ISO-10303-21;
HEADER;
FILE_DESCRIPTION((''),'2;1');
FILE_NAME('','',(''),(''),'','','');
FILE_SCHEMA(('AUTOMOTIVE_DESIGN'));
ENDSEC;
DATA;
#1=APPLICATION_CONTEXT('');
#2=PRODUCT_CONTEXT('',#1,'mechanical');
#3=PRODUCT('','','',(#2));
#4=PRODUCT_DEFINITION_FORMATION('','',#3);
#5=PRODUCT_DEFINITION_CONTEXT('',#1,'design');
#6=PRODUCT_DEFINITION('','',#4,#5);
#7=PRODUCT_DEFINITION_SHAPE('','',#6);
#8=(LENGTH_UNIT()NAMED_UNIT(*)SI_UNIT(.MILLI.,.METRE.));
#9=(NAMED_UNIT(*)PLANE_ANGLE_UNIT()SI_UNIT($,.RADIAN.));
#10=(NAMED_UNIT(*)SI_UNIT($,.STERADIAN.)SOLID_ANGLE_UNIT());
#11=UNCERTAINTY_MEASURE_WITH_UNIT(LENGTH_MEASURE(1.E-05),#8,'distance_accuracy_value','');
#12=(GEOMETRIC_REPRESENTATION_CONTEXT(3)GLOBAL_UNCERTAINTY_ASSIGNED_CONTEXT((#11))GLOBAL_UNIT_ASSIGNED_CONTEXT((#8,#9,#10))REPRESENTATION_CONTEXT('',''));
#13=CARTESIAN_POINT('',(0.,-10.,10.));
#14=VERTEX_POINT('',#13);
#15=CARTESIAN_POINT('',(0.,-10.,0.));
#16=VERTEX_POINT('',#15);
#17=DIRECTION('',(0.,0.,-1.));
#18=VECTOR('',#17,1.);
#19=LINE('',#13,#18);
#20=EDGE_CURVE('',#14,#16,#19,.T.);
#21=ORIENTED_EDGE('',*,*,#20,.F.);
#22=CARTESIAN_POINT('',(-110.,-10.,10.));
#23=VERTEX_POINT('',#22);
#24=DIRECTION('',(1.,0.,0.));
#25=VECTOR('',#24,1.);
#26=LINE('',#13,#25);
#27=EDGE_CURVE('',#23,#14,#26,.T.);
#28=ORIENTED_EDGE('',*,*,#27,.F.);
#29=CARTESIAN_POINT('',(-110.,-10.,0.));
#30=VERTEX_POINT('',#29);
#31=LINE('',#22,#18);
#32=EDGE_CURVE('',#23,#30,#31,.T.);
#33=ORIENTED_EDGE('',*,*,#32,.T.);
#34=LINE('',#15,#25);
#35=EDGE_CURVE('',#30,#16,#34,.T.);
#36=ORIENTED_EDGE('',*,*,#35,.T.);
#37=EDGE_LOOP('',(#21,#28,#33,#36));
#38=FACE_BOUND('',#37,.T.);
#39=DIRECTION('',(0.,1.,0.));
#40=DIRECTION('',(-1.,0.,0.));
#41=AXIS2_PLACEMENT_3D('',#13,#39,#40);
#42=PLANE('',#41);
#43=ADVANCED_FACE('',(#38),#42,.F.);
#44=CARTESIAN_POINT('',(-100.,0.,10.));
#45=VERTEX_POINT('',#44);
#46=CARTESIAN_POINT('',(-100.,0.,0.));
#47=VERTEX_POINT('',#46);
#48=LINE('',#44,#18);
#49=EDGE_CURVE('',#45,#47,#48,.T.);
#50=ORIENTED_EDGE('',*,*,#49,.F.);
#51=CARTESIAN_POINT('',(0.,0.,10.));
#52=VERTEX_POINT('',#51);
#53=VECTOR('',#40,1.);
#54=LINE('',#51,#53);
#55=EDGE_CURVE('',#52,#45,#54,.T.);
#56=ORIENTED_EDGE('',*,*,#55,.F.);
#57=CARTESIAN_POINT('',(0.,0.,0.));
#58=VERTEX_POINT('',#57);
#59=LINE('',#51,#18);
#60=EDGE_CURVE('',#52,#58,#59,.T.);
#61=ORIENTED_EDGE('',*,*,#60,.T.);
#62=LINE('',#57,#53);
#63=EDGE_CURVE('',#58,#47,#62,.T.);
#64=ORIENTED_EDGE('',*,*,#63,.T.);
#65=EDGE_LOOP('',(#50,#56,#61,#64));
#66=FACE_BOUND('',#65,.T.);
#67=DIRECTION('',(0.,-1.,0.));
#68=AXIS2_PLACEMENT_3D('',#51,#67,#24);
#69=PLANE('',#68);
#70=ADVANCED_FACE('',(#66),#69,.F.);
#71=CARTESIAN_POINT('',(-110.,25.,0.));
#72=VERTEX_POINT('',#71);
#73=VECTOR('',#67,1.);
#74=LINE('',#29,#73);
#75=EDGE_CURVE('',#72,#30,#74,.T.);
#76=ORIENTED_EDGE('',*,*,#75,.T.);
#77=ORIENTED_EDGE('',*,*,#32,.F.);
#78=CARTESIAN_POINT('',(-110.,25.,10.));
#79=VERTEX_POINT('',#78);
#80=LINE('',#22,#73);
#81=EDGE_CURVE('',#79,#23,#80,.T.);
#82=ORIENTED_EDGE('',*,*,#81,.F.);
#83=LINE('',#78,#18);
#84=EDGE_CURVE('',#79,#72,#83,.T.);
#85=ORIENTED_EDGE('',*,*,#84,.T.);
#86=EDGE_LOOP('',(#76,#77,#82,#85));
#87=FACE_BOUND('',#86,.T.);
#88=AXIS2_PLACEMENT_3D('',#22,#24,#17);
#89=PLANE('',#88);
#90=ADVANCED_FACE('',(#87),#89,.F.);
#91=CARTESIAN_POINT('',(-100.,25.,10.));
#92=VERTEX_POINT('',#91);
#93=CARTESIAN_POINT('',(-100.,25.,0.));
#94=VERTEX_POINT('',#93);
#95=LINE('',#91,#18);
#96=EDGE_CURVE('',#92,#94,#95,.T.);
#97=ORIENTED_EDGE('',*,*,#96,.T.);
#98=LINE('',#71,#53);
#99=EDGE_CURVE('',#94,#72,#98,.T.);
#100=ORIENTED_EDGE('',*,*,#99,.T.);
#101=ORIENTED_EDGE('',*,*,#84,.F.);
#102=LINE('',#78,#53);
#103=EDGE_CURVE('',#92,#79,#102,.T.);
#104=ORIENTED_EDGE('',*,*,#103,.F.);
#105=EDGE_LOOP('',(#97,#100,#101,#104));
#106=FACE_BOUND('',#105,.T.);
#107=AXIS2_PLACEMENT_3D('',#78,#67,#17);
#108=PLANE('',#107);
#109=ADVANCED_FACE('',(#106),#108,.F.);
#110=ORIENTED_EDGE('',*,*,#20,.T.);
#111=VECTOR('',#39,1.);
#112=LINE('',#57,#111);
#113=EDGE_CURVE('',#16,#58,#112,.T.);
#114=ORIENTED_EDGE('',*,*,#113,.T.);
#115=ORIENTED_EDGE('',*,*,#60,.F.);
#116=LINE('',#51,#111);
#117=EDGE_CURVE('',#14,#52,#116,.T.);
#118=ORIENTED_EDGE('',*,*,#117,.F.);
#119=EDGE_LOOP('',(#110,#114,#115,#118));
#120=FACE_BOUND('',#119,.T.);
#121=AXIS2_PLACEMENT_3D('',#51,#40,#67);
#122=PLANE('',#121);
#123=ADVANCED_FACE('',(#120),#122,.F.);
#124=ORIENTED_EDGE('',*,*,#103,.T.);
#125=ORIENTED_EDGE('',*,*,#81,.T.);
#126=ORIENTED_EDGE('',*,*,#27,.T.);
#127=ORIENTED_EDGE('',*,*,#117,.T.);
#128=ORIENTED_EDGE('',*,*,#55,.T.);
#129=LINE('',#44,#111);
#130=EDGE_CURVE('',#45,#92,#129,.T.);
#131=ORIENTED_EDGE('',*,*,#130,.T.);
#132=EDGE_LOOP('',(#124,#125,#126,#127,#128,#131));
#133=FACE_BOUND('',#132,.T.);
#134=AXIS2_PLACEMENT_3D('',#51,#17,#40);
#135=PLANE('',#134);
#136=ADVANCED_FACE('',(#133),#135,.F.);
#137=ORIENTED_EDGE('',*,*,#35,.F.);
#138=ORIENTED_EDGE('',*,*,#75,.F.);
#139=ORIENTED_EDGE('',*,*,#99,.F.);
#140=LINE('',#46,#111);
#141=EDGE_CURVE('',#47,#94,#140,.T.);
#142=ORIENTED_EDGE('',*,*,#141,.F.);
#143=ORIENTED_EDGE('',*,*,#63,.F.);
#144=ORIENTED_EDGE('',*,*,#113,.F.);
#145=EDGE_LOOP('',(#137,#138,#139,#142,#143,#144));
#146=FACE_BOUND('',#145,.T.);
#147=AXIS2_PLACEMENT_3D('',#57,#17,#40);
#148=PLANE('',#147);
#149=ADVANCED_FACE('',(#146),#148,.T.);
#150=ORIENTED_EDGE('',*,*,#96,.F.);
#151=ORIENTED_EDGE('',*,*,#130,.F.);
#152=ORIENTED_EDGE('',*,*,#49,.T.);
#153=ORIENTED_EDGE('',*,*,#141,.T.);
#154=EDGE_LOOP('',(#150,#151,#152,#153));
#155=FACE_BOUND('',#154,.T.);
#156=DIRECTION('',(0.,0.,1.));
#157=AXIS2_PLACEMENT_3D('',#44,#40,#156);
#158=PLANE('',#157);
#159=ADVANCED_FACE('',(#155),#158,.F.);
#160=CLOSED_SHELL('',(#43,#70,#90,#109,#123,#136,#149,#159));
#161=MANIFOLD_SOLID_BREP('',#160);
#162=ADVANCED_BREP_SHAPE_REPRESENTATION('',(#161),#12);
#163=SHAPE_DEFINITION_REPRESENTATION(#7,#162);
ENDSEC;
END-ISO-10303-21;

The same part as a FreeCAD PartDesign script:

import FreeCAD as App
import Part
import Sketcher
from FreeCAD import Vector

doc = App.newDocument("Part")
body = doc.addObject("PartDesign::Body", "Body")

# Sketch on XY plane
sketch1 = doc.addObject("Sketcher::SketchObject", "Sketch")
body.addObject(sketch1)
sketch1.AttachmentSupport = (doc.XY_Plane, [""])
sketch1.MapMode = "FlatFace"
sketch1.addGeometry(Part.LineSegment(Vector(0, 0, 0), Vector(-100, 0, 0)), False)
sketch1.addGeometry(Part.LineSegment(Vector(-100, 0, 0), Vector(-100, 25, 0)), False)
sketch1.addGeometry(Part.LineSegment(Vector(-100, 25, 0), Vector(-110, 25, 0)), False)
sketch1.addGeometry(Part.LineSegment(Vector(-110, 25, 0), Vector(-110, -10, 0)), False)
sketch1.addGeometry(Part.LineSegment(Vector(-110, -10, 0), Vector(0, -10, 0)), False)
sketch1.addGeometry(Part.LineSegment(Vector(0, -10, 0), Vector(0, 0, 0)), False)
sketch1.addConstraint(Sketcher.Constraint("Coincident", 0, 2, 1, 1))
sketch1.addConstraint(Sketcher.Constraint("Coincident", 1, 2, 2, 1))
sketch1.addConstraint(Sketcher.Constraint("Coincident", 2, 2, 3, 1))
sketch1.addConstraint(Sketcher.Constraint("Coincident", 3, 2, 4, 1))
sketch1.addConstraint(Sketcher.Constraint("Coincident", 4, 2, 5, 1))
sketch1.addConstraint(Sketcher.Constraint("Coincident", 5, 2, 0, 1))
sketch1.addConstraint(Sketcher.Constraint("Horizontal", 0))
sketch1.addConstraint(Sketcher.Constraint("Vertical", 1))
sketch1.addConstraint(Sketcher.Constraint("Horizontal", 2))
sketch1.addConstraint(Sketcher.Constraint("Vertical", 3))
sketch1.addConstraint(Sketcher.Constraint("Horizontal", 4))
sketch1.addConstraint(Sketcher.Constraint("Vertical", 5))
sketch1.addConstraint(Sketcher.Constraint("Coincident", 5, 2, -1, 1))
sketch1.addConstraint(Sketcher.Constraint("Equal", 2, 5))
sketch1.addConstraint(Sketcher.Constraint("DistanceX", 0, 2, 0, 1, 100.0))
sketch1.addConstraint(Sketcher.Constraint("DistanceX", 2, 2, 2, 1, 10.0))
sketch1.addConstraint(Sketcher.Constraint("DistanceY", 1, 1, 1, 2, 25.0))
pad1 = doc.addObject("PartDesign::Pad", "Pad")
body.addObject(pad1)
pad1.Profile = sketch1
pad1.Length = 10

doc.recompute()
